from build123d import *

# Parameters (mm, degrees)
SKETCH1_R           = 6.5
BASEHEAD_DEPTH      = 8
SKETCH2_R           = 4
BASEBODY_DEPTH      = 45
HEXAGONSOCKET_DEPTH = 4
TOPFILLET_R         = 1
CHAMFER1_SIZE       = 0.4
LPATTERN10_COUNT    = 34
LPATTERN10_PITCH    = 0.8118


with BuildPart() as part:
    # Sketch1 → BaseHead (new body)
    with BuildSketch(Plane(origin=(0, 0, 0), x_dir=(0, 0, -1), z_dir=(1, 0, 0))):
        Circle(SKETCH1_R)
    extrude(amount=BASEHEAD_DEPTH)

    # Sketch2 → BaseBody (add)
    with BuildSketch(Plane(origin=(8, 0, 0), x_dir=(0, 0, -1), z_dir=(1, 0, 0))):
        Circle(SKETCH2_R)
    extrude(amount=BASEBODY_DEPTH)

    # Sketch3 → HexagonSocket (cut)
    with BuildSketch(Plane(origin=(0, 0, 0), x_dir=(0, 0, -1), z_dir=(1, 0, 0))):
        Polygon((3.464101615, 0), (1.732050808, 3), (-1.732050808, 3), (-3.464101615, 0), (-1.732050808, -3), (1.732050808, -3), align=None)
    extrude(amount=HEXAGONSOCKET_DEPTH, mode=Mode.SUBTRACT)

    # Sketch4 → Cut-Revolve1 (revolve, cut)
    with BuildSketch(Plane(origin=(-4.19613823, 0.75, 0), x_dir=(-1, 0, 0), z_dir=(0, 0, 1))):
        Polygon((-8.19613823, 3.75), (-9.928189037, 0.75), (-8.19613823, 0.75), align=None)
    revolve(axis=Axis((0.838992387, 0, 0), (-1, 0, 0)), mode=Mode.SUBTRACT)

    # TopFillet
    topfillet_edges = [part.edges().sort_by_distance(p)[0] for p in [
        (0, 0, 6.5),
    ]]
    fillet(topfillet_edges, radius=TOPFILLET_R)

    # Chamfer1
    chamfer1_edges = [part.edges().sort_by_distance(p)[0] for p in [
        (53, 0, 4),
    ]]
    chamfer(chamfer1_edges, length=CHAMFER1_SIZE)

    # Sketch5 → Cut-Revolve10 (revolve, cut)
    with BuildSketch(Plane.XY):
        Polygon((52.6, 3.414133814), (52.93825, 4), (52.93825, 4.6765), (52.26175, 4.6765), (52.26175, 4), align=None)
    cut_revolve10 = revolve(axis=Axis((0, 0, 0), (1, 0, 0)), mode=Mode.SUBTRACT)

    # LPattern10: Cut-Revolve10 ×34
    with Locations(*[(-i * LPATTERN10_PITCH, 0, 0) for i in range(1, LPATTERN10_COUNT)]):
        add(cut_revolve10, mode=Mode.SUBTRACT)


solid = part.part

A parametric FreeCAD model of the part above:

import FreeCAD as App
import Part
import Sketcher
from FreeCAD import Vector
Q = App.Units.Quantity


def edges_at(feature, points):
    """Names of the edges that pass closest to the given points."""
    edges = feature.Shape.Edges
    near = lambda p: min(range(len(edges)), key=lambda i: edges[i].distToShape(Part.Vertex(*p))[0])
    return sorted({f"Edge{near(p) + 1}" for p in points})


def add_polygon(sketch, points):
    """Adds a closed chain of lines whose ends are joined by coincident constraints."""
    first, n = sketch.GeometryCount, len(points)
    for a, b in zip(points, points[1:] + points[:1]):
        sketch.addGeometry(Part.LineSegment(App.Vector(*a, 0), App.Vector(*b, 0)), False)
    for i in range(n):
        sketch.addConstraint(Sketcher.Constraint("Coincident", first + i, 2, first + (i + 1) % n, 1))

doc = App.newDocument("Part")
body = doc.addObject("PartDesign::Body", "Body")

# Sketch on YZ plane
sketch1 = body.newObject("Sketcher::SketchObject", "Sketch")
sketch1.AttachmentSupport = (doc.getObject("YZ_Plane"), [""])
sketch1.MapMode = "FlatFace"
sketch1.addGeometry(Part.Circle(Vector(0, 0, 0), Vector(0, 0, 1), 6), False)
sketch1.addConstraint([
    Sketcher.Constraint("Coincident", 0, 3, -1, 1),
    Sketcher.Constraint("Diameter", 0, 13.0),
])
pad1 = body.newObject("PartDesign::Pad", "Pad")
pad1.Profile = sketch1
pad1.Length = 8

# Sketch on YZ plane
sketch2 = body.newObject("Sketcher::SketchObject", "Sketch001")
sketch2.AttachmentSupport = (doc.getObject("YZ_Plane"), [""])
sketch2.MapMode = "FlatFace"
sketch2.AttachmentOffset = App.Placement(Vector(0, 0, 8), App.Rotation())
sketch2.addGeometry(Part.Circle(Vector(0, 0, 0), Vector(0, 0, 1), 4), False)
sketch2.addConstraint([
    Sketcher.Constraint("Coincident", 0, 3, -1, 1),
    Sketcher.Constraint("Diameter", 0, 8.0),
])
pad2 = body.newObject("PartDesign::Pad", "Pad001")
pad2.Profile = sketch2
pad2.Length = 45

# Sketch on YZ plane
sketch3 = body.newObject("Sketcher::SketchObject", "Sketch002")
sketch3.AttachmentSupport = (doc.getObject("YZ_Plane"), [""])
sketch3.MapMode = "FlatFace"
add_polygon(sketch3, [(0, -3.5), (3, -1.7), (3, 1.7), (0, 3.5), (-3, 1.7), (-3, -1.7)])  # lines 0-5
sketch3.addConstraint([
    Sketcher.Constraint("Vertical", 1),
    Sketcher.Constraint("Vertical", 4),
    Sketcher.Constraint("Symmetric", 0, 2, 3, 2, -1, 1),
    Sketcher.Constraint("Symmetric", 2, 2, 5, 2, -1, 1),
    Sketcher.Constraint("PointOnObject", 2, 2, -2),
    Sketcher.Constraint("Parallel", 2, 5),
    Sketcher.Constraint("Horizontal", 1, 2, 3, 2),
    Sketcher.Constraint("Angle", 0, Q("30 deg")),
    Sketcher.Constraint("DistanceX", -1, 1, 0, 2, 3.0),
    Sketcher.Constraint("DistanceY", 1, 1, 1, 2, 3.464102),
])
pocket1 = body.newObject("PartDesign::Pocket", "Pocket")
pocket1.Profile = sketch3
pocket1.Length = 4
pocket1.Reversed = True

# Sketch on XY plane
sketch4 = body.newObject("Sketcher::SketchObject", "Sketch003")
sketch4.AttachmentSupport = (doc.getObject("XY_Plane"), [""])
sketch4.MapMode = "FlatFace"
add_polygon(sketch4, [(4, -3), (5.7, 0), (4, 0)])  # lines 0-2
sketch4.addConstraint([
    Sketcher.Constraint("Horizontal", 1),
    Sketcher.Constraint("Vertical", 2),
    Sketcher.Constraint("PointOnObject", 0, 2, -1),
    Sketcher.Constraint("DistanceY", 2, 2, 2, 1, 3.0),
    Sketcher.Constraint("Angle", 0, Q("60 deg")),
    Sketcher.Constraint("DistanceX", -1, 1, 1, 2, 4.0),
])
groove = body.newObject("PartDesign::Groove", "Groove")
groove.Profile = sketch4
groove.ReferenceAxis = (sketch4, ["H_Axis"])
groove.Angle = 360
doc.recompute()

fillet = body.newObject("PartDesign::Fillet", "Fillet")
fillet.Base = (groove, edges_at(groove, [(0, 0, 6.5)]))
fillet.Radius = 1
doc.recompute()

chamfer = body.newObject("PartDesign::Chamfer", "Chamfer")
chamfer.Base = (fillet, edges_at(fillet, [(53, 0, 4)]))
chamfer.Size = 0.4

# Sketch on XY plane
sketch5 = body.newObject("Sketcher::SketchObject", "Sketch004")
sketch5.AttachmentSupport = (doc.getObject("XY_Plane"), [""])
sketch5.MapMode = "FlatFace"
add_polygon(sketch5, [(52.6, 3.4), (52.9, 4), (52.9, 4.7), (52.3, 4.7), (52.3, 4)])  # lines 0-4
sketch5.addConstraint([
    Sketcher.Constraint("Vertical", 1),
    Sketcher.Constraint("Horizontal", 2),
    Sketcher.Constraint("Vertical", 3),
    Sketcher.Constraint("Horizontal", 0, 2, 3, 2),
    Sketcher.Constraint("Equal", 2, 1),
    Sketcher.Constraint("Equal", 0, 4),
    Sketcher.Constraint("Angle", 0, Q("60 deg")),
    Sketcher.Constraint("DistanceY", -1, 1, 0, 2, 4.0),
    Sketcher.Constraint("DistanceX", -1, 1, 4, 2, 52.6),
    Sketcher.Constraint("DistanceX", 2, 2, 2, 1, 0.6765),
])
groove2 = body.newObject("PartDesign::Groove", "Groove001")
groove2.Profile = sketch5
groove2.ReferenceAxis = (sketch5, ["H_Axis"])
groove2.Angle = 360
doc.recompute()

linearpattern = body.newObject("PartDesign::LinearPattern", "LinearPattern")
linearpattern.Originals = [groove2]
linearpattern.Direction = (doc.getObject("X_Axis"), [""])
linearpattern.Mode = "offset"
linearpattern.Offset = 0.8118
linearpattern.Occurrences = 34
linearpattern.Reversed = True
body.Tip = linearpattern

doc.recompute()
